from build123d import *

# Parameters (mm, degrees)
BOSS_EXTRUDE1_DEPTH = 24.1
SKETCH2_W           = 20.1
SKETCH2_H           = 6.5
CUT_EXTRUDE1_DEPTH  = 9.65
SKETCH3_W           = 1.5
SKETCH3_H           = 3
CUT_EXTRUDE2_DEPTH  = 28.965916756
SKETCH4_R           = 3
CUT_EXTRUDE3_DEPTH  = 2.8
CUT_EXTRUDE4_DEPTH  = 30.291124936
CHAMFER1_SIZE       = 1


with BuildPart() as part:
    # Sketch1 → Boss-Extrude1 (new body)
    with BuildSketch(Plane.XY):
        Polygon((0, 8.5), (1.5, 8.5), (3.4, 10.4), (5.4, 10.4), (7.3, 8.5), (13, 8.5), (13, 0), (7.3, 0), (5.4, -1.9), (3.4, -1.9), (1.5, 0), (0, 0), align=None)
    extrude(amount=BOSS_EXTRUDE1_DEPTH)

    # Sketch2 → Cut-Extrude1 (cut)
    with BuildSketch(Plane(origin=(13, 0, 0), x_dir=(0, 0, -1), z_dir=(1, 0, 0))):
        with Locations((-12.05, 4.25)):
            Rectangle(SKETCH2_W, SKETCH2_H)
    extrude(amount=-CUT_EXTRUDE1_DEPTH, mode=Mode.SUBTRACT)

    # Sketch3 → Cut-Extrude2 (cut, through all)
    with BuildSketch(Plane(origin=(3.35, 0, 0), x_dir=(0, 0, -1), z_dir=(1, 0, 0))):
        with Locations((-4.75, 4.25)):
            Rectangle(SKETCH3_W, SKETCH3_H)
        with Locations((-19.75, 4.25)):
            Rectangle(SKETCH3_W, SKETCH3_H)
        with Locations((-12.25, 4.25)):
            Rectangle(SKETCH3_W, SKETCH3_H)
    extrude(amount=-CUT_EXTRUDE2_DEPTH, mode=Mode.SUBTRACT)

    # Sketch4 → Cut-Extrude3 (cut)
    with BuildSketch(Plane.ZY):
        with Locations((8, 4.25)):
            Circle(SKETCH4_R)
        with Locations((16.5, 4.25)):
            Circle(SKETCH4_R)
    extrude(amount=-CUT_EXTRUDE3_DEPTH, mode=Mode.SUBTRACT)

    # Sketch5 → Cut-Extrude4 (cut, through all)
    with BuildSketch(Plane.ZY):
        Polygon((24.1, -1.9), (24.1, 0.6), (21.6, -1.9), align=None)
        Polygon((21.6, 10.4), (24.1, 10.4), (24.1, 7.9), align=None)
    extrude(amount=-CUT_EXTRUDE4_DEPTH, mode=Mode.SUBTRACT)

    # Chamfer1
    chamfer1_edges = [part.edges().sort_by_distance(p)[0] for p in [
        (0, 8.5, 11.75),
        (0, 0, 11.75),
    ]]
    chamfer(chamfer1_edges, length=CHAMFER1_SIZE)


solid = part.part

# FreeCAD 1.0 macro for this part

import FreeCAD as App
import Part
import Sketcher

V = App.Vector
Q = App.Units.Quantity


def edges_at(feature, points):
    """Names of the edges that pass closest to the given points."""
    edges = feature.Shape.Edges
    near = lambda p: min(range(len(edges)), key=lambda i: edges[i].distToShape(Part.Vertex(*p))[0])
    return sorted({f"Edge{near(p) + 1}" for p in points})


def add_polygon(sketch, points):
    """Adds a closed chain of lines whose ends are joined by coincident constraints."""
    first, n = sketch.GeometryCount, len(points)
    for a, b in zip(points, points[1:] + points[:1]):
        sketch.addGeometry(Part.LineSegment(App.Vector(*a, 0), App.Vector(*b, 0)), False)
    for i in range(n):
        sketch.addConstraint(Sketcher.Constraint("Coincident", first + i, 2, first + (i + 1) % n, 1))

doc = App.newDocument("Part")
params = doc.addObject("Spreadsheet::Sheet", "Params")
for row, (alias, value) in enumerate([
    ("sketch1_width", "2 mm"),
    ("sketch1_width2", "1.5 mm"),
    ("sketch1_width3", "5.7 mm"),
    ("sketch1_height", "8.5 mm"),
    ("pad1_length", "24.1 mm"),
    ("sketch2_width", "6.5 mm"),
    ("sketch2_height", "20.1 mm"),
    ("pocket1_length", "9.65 mm"),
    ("sketch3_width", "3 mm"),
    ("sketch3_height", "1.5 mm"),
    ("sketch4_diameter", "6 mm"),
    ("pocket3_length", "2.8 mm"),
    ("sketch5_width", "2.5 mm"),
    ("chamfer_size", "1 mm"),
], start=1):
    params.set(f"A{row}", alias)
    params.set(f"B{row}", "=" + value)
    params.setAlias(f"B{row}", alias)

body = doc.addObject("PartDesign::Body", "Body")

# Sketch on XY plane
sketch1 = body.newObject("Sketcher::SketchObject", "Sketch")
sketch1.AttachmentSupport = (doc.getObject("XY_Plane"), [""])
sketch1.MapMode = "FlatFace"
add_polygon(sketch1, [(1.5, 8.5), (0, 8.5), (0, 0), (1.5, 0), (3.4, -1.9), (5.4, -1.9), (7.3, 0), (13, 0), (13, 8.5), (7.3, 8.5), (5.4, 10.4), (3.4, 10.4)])  # lines 0-11
sketch1.addConstraint([
    Sketcher.Constraint("Horizontal", 0),
    Sketcher.Constraint("Vertical", 1),
    Sketcher.Constraint("Horizontal", 2),
    Sketcher.Constraint("Horizontal", 4),
    Sketcher.Constraint("Horizontal", 6),
    Sketcher.Constraint("Vertical", 7),
    Sketcher.Constraint("Horizontal", 8),
    Sketcher.Constraint("Horizontal", 10),
    Sketcher.Constraint("Coincident", 1, 2, -1, 1),
    Sketcher.Constraint("PointOnObject", 5, 2, -1),
    Sketcher.Constraint("Perpendicular", 3, 5),
    Sketcher.Constraint("Perpendicular", 5, 9),
    Sketcher.Constraint("Perpendicular", 9, 11),
    Sketcher.Constraint("Horizontal", 0, 2, 7, 2),
    Sketcher.Constraint("Vertical", 5, 2, 8, 2),
    Sketcher.Constraint("Vertical", 4, 2, 9, 2),
    Sketcher.Constraint("Vertical", 3, 2, 10, 2),
    Sketcher.Constraint("Vertical", 2, 2, 11, 2),
    Sketcher.Constraint("DistanceX", 4, 1, 4, 2, Q("2 mm")),
    Sketcher.Constraint("DistanceX", 0, 2, 0, 1, Q("1.5 mm")),
    Sketcher.Constraint("DistanceX", 6, 1, 6, 2, Q("5.7 mm")),
    Sketcher.Constraint("DistanceY", 1, 2, 1, 1, Q("8.5 mm")),
    Sketcher.Constraint("DistanceX", -1, 1, 6, 2, Q("13 mm")),
])
sketch1.setExpression("Constraints[30]", "Params.sketch1_width")
sketch1.setExpression("Constraints[31]", "Params.sketch1_width2")
sketch1.setExpression("Constraints[32]", "Params.sketch1_width3")
sketch1.setExpression("Constraints[33]", "Params.sketch1_height")
pad1 = body.newObject("PartDesign::Pad", "Pad")
pad1.Profile = sketch1
pad1.setExpression("Length", "Params.pad1_length")

# Sketch on YZ plane
sketch2 = body.newObject("Sketcher::SketchObject", "Sketch001")
sketch2.AttachmentSupport = (doc.getObject("YZ_Plane"), [""])
sketch2.MapMode = "FlatFace"
sketch2.AttachmentOffset = App.Placement(V(0, 0, 13), App.Rotation())
add_polygon(sketch2, [(8, 22), (1, 22), (1, 2), (8, 2)])  # lines 0-3
sketch2.addConstraint([
    Sketcher.Constraint("Horizontal", 0),
    Sketcher.Constraint("Vertical", 1),
    Sketcher.Constraint("Horizontal", 2),
    Sketcher.Constraint("Vertical", 3),
    Sketcher.Constraint("DistanceX", 0, 2, 0, 1, Q("6.5 mm")),
    Sketcher.Constraint("DistanceY", 1, 2, 1, 1, Q("20.1 mm")),
    Sketcher.Constraint("DistanceX", -1, 1, 0, 2, Q("1 mm")),
    Sketcher.Constraint("DistanceY", -1, 1, 1, 2, Q("2 mm")),
])
sketch2.setExpression("Constraints[8]", "Params.sketch2_width")
sketch2.setExpression("Constraints[9]", "Params.sketch2_height")
pocket1 = body.newObject("PartDesign::Pocket", "Pocket")
pocket1.Profile = sketch2
pocket1.setExpression("Length", "Params.pocket1_length")

# Sketch on YZ plane
sketch3 = body.newObject("Sketcher::SketchObject", "Sketch002")
sketch3.AttachmentSupport = (doc.getObject("YZ_Plane"), [""])
sketch3.MapMode = "FlatFace"
sketch3.AttachmentOffset = App.Placement(V(0, 0, 3.35), App.Rotation())
add_polygon(sketch3, [(5.8, 5.5), (2.8, 5.5), (2.8, 4), (5.8, 4)])  # lines 0-3
add_polygon(sketch3, [(5.8, 20.5), (2.8, 20.5), (2.8, 19), (5.8, 19)])  # lines 4-7
add_polygon(sketch3, [(5.8, 13), (2.8, 13), (2.8, 11.5), (5.8, 11.5)])  # lines 8-11
sketch3.addConstraint([
    Sketcher.Constraint("Horizontal", 0),
    Sketcher.Constraint("Vertical", 1),
    Sketcher.Constraint("Horizontal", 2),
    Sketcher.Constraint("Vertical", 3),
    Sketcher.Constraint("Horizontal", 4),
    Sketcher.Constraint("Vertical", 5),
    Sketcher.Constraint("Horizontal", 6),
    Sketcher.Constraint("Vertical", 7),
    Sketcher.Constraint("Horizontal", 8),
    Sketcher.Constraint("Vertical", 9),
    Sketcher.Constraint("Horizontal", 10),
    Sketcher.Constraint("Vertical", 11),
    Sketcher.Constraint("Vertical", 1, 2, 4, 2),
    Sketcher.Constraint("Vertical", 3, 2, 6, 2),
    Sketcher.Constraint("Vertical", 5, 2, 8, 2),
    Sketcher.Constraint("Vertical", 7, 2, 10, 2),
    Sketcher.Constraint("Equal", 3, 5),
    Sketcher.Constraint("Equal", 7, 9),
    Sketcher.Constraint("DistanceX", 0, 2, 0, 1, Q("3 mm")),
    Sketcher.Constraint("DistanceY", 1, 2, 1, 1, Q("1.5 mm")),
    Sketcher.Constraint("DistanceY", -1, 1, 1, 2, Q("4 mm")),
    Sketcher.Constraint("DistanceY", -1, 1, 5, 2, Q("19 mm")),
    Sketcher.Constraint("DistanceY", -1, 1, 8, 2, Q("13 mm")),
    Sketcher.Constraint("DistanceX", -1, 1, 0, 2, Q("2.75 mm")),
])
sketch3.setExpression("Constraints[30]", "Params.sketch3_width")
sketch3.setExpression("Constraints[31]", "Params.sketch3_height")
pocket2 = body.newObject("PartDesign::Pocket", "Pocket001")
pocket2.Profile = sketch3
pocket2.Type = "ThroughAll"

# Sketch on YZ plane
sketch4 = body.newObject("Sketcher::SketchObject", "Sketch003")
sketch4.AttachmentSupport = (doc.getObject("YZ_Plane"), [""])
sketch4.MapMode = "FlatFace"
sketch4.addGeometry([
    Part.Circle(V(4.2, 8, 0), V(0, 0, 1), 3),
    Part.Circle(V(4.2, 16.5, 0), V(0, 0, 1), 3),
], False)
sketch4.addConstraint([
    Sketcher.Constraint("Equal", 0, 1),
    Sketcher.Constraint("Vertical", 0, 3, 1, 3),
    Sketcher.Constraint("Diameter", 0, Q("6 mm")),
    Sketcher.Constraint("DistanceY", -1, 1, 0, 3, Q("8 mm")),
    Sketcher.Constraint("DistanceY", -1, 1, 1, 3, Q("16.5 mm")),
    Sketcher.Constraint("DistanceX", -1, 1, 0, 3, Q("4.25 mm")),
])
sketch4.setExpression("Constraints[2]", "Params.sketch4_diameter")
pocket3 = body.newObject("PartDesign::Pocket", "Pocket002")
pocket3.Profile = sketch4
pocket3.setExpression("Length", "Params.pocket3_length")
pocket3.Reversed = True

# Sketch on YZ plane
sketch5 = body.newObject("Sketcher::SketchObject", "Sketch004")
sketch5.AttachmentSupport = (doc.getObject("YZ_Plane"), [""])
sketch5.MapMode = "FlatFace"
add_polygon(sketch5, [(-1.9, 24.1), (0.6, 24.1), (-1.9, 21.6)])  # lines 0-2
add_polygon(sketch5, [(10.4, 24.1), (10.4, 21.6), (7.9, 24.1)])  # lines 3-5
sketch5.addConstraint([
    Sketcher.Constraint("Horizontal", 0),
    Sketcher.Constraint("Vertical", 2),
    Sketcher.Constraint("Vertical", 3),
    Sketcher.Constraint("Horizontal", 5),
    Sketcher.Constraint("Perpendicular", 1, 4),
    Sketcher.Constraint("Horizontal", 1, 2, 3, 2),
    Sketcher.Constraint("Horizontal", 2, 2, 4, 2),
    Sketcher.Constraint("Equal", 0, 5),
    Sketcher.Constraint("DistanceX", 0, 1, 0, 2, Q("2.5 mm")),
    Sketcher.Constraint("DistanceX", -1, 1, 0, 2, Q("0.6 mm")),
    Sketcher.Constraint("DistanceY", -1, 1, 0, 2, Q("24.1 mm")),
    Sketcher.Constraint("DistanceX", -1, 1, 3, 2, Q("10.4 mm")),
])
sketch5.setExpression("Constraints[14]", "Params.sketch5_width")
pocket4 = body.newObject("PartDesign::Pocket", "Pocket003")
pocket4.Profile = sketch5
pocket4.Type = "ThroughAll"
pocket4.Reversed = True
doc.recompute()

chamfer = body.newObject("PartDesign::Chamfer", "Chamfer")
chamfer.Base = (pocket4, edges_at(pocket4, [(0, 8.5, 11.75), (0, 0, 11.75)]))
chamfer.setExpression("Size", "Params.chamfer_size")

doc.recompute()
